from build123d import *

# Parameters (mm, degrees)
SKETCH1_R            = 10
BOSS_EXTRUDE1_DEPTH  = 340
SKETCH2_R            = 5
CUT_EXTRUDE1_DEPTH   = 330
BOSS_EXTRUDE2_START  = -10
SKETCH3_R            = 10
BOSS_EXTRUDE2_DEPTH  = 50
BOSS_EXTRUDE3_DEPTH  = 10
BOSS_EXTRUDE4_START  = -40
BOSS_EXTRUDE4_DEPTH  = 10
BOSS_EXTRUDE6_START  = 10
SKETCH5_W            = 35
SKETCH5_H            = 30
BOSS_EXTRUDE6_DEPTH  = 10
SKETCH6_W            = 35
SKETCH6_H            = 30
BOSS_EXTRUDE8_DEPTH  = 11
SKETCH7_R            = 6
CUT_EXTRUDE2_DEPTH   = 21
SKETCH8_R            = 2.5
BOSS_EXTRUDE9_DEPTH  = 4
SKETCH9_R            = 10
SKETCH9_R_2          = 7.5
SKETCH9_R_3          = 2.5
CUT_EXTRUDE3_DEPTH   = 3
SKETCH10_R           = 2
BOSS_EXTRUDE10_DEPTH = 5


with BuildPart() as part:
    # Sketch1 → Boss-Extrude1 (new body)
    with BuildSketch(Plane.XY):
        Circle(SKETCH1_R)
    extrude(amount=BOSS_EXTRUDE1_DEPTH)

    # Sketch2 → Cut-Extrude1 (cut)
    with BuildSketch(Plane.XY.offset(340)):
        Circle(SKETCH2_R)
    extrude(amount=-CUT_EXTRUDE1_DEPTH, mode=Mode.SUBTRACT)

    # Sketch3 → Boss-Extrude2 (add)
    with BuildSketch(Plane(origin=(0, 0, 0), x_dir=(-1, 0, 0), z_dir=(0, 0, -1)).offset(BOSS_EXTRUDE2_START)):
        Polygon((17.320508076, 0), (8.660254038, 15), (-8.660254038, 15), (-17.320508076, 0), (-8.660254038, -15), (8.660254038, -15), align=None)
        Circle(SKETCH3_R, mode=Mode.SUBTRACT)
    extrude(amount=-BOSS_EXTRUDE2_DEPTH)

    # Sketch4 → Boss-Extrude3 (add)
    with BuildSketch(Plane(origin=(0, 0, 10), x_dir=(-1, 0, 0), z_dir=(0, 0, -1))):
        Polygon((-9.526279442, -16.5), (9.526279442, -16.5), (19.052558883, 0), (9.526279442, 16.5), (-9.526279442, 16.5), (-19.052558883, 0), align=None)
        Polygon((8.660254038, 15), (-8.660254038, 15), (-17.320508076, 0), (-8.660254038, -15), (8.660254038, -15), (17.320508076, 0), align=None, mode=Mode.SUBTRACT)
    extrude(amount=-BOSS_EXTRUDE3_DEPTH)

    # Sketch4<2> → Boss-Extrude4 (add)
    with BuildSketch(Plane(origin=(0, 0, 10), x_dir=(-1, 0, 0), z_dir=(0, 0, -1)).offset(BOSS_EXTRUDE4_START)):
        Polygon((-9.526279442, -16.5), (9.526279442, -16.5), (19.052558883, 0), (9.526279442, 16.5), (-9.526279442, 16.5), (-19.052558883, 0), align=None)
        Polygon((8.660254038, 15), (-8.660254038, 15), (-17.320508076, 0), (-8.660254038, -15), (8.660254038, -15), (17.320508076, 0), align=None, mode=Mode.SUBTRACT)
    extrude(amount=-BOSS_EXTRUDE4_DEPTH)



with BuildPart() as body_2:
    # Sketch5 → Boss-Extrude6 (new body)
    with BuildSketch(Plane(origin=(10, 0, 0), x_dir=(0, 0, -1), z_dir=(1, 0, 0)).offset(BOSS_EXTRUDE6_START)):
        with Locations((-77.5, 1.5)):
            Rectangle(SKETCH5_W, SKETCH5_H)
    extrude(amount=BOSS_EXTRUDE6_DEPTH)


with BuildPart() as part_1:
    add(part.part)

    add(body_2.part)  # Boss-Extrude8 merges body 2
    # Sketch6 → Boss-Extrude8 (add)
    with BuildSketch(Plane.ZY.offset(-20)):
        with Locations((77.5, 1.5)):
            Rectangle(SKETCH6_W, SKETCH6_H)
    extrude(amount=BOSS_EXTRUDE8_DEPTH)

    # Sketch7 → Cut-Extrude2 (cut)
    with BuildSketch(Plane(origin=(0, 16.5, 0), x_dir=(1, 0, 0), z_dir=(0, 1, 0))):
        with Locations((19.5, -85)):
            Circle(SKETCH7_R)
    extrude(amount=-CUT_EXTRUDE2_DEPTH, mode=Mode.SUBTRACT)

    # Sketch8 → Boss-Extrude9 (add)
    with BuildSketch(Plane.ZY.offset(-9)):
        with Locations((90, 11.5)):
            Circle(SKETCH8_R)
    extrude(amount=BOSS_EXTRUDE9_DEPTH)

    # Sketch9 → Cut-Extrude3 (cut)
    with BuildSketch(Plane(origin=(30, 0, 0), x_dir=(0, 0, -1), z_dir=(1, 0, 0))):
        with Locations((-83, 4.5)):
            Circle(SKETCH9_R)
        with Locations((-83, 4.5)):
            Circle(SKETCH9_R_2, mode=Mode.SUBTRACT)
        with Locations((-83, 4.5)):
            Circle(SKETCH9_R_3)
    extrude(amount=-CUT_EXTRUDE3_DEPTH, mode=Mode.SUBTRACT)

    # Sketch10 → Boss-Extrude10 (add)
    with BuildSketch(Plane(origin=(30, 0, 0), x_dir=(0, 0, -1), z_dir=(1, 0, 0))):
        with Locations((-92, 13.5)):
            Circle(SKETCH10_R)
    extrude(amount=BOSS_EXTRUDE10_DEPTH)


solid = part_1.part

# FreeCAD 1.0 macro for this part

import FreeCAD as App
import Part
import Sketcher

V = App.Vector
Q = App.Units.Quantity

doc = App.newDocument("Part")
params = doc.addObject("Spreadsheet::Sheet", "Params")
for row, (alias, value) in enumerate([
    ("sketch1_diameter", "20 mm"),
    ("pad1_length", "340 mm"),
    ("sketch2_diameter", "10 mm"),
    ("pocket1_length", "330 mm"),
    ("sketch3_diameter", "20 mm"),
    ("pad2_length", "50 mm"),
    ("pad3_length", "10 mm"),
    ("pad4_length", "10 mm"),
    ("sketch6_width", "30 mm"),
    ("sketch6_height", "35 mm"),
    ("pad5_length", "10 mm"),
    ("sketch7_width", "30 mm"),
    ("sketch7_height", "35 mm"),
    ("pad6_length", "11 mm"),
    ("sketch8_diameter", "12 mm"),
    ("pocket2_length", "21 mm"),
    ("sketch9_diameter", "5 mm"),
    ("pad7_length", "4 mm"),
    ("sketch10_diameter", "20 mm"),
    ("sketch10_diameter2", "15 mm"),
    ("sketch10_diameter3", "5 mm"),
    ("pocket3_length", "3 mm"),
    ("sketch11_diameter", "4 mm"),
    ("pad8_length", "5 mm"),
], start=1):
    params.set(f"A{row}", alias)
    params.set(f"B{row}", "=" + value)
    params.setAlias(f"B{row}", alias)

body = doc.addObject("PartDesign::Body", "Body")

# Sketch on XY plane
sketch1 = body.newObject("Sketcher::SketchObject", "Sketch")
sketch1.AttachmentSupport = (doc.getObject("XY_Plane"), [""])
sketch1.MapMode = "FlatFace"
sketch1.addGeometry(Part.Circle(V(0, 0, 0), V(0, 0, 1), 10), False)
sketch1.addConstraint(Sketcher.Constraint("Coincident", 0, 3, -1, 1))
sketch1.addConstraint(Sketcher.Constraint("Diameter", 0, Q("20 mm")))
sketch1.setExpression("Constraints[1]", "Params.sketch1_diameter")
pad1 = body.newObject("PartDesign::Pad", "Pad")
pad1.Profile = sketch1
pad1.setExpression("Length", "Params.pad1_length")

# Sketch on XY plane
sketch2 = body.newObject("Sketcher::SketchObject", "Sketch001")
sketch2.AttachmentSupport = (doc.getObject("XY_Plane"), [""])
sketch2.MapMode = "FlatFace"
sketch2.AttachmentOffset = App.Placement(V(0, 0, 340), App.Rotation())
sketch2.addGeometry(Part.Circle(V(0, 0, 0), V(0, 0, 1), 5), False)
sketch2.addConstraint(Sketcher.Constraint("Coincident", 0, 3, -1, 1))
sketch2.addConstraint(Sketcher.Constraint("Diameter", 0, Q("10 mm")))
sketch2.setExpression("Constraints[1]", "Params.sketch2_diameter")
pocket1 = body.newObject("PartDesign::Pocket", "Pocket")
pocket1.Profile = sketch2
pocket1.setExpression("Length", "Params.pocket1_length")

# Sketch on XY plane
sketch3 = body.newObject("Sketcher::SketchObject", "Sketch002")
sketch3.AttachmentSupport = (doc.getObject("XY_Plane"), [""])
sketch3.MapMode = "FlatFace"
sketch3.AttachmentOffset = App.Placement(V(0, 0, 10), App.Rotation())
sketch3.addGeometry(Part.LineSegment(V(-17, 0, 0), V(-9, 15, 0)), False)
sketch3.addGeometry(Part.LineSegment(V(-9, 15, 0), V(9, 15, 0)), False)
sketch3.addGeometry(Part.LineSegment(V(9, 15, 0), V(17, 0, 0)), False)
sketch3.addGeometry(Part.LineSegment(V(17, 0, 0), V(9, -15, 0)), False)
sketch3.addGeometry(Part.LineSegment(V(9, -15, 0), V(-9, -15, 0)), False)
sketch3.addGeometry(Part.LineSegment(V(-9, -15, 0), V(-17, 0, 0)), False)
sketch3.addGeometry(Part.Circle(V(0, 0, 0), V(0, 0, 1), 10), False)
sketch3.addConstraint(Sketcher.Constraint("Coincident", 0, 2, 1, 1))
sketch3.addConstraint(Sketcher.Constraint("Coincident", 1, 2, 2, 1))
sketch3.addConstraint(Sketcher.Constraint("Coincident", 2, 2, 3, 1))
sketch3.addConstraint(Sketcher.Constraint("Coincident", 3, 2, 4, 1))
sketch3.addConstraint(Sketcher.Constraint("Coincident", 4, 2, 5, 1))
sketch3.addConstraint(Sketcher.Constraint("Coincident", 5, 2, 0, 1))
sketch3.addConstraint(Sketcher.Constraint("Horizontal", 1))
sketch3.addConstraint(Sketcher.Constraint("Horizontal", 4))
sketch3.addConstraint(Sketcher.Constraint("Coincident", 6, 3, -1, 1))
sketch3.addConstraint(Sketcher.Constraint("Symmetric", 0, 2, 3, 2, -1, 1))
sketch3.addConstraint(Sketcher.Constraint("Symmetric", 2, 2, 5, 2, -1, 1))
sketch3.addConstraint(Sketcher.Constraint("PointOnObject", 2, 2, -1))
sketch3.addConstraint(Sketcher.Constraint("Parallel", 2, 5))
sketch3.addConstraint(Sketcher.Constraint("Vertical", 1, 2, 3, 2))
sketch3.addConstraint(Sketcher.Constraint("Diameter", 6, Q("20 mm")))
sketch3.addConstraint(Sketcher.Constraint("Angle", 0, Q("60 deg")))
sketch3.addConstraint(Sketcher.Constraint("DistanceY", -1, 1, 0, 2, Q("15 mm")))
sketch3.addConstraint(Sketcher.Constraint("DistanceX", 1, 1, 1, 2, Q("17.320508 mm")))
sketch3.setExpression("Constraints[14]", "Params.sketch3_diameter")
pad2 = body.newObject("PartDesign::Pad", "Pad001")
pad2.Profile = sketch3
pad2.setExpression("Length", "Params.pad2_length")

# Sketch on XY plane
sketch4 = body.newObject("Sketcher::SketchObject", "Sketch003")
sketch4.AttachmentSupport = (doc.getObject("XY_Plane"), [""])
sketch4.MapMode = "FlatFace"
sketch4.AttachmentOffset = App.Placement(V(0, 0, 10), App.Rotation())
sketch4.addGeometry(Part.LineSegment(V(10, -16, 0), V(-10, -16, 0)), False)
sketch4.addGeometry(Part.LineSegment(V(-10, -16, 0), V(-19, 0, 0)), False)
sketch4.addGeometry(Part.LineSegment(V(-19, 0, 0), V(-10, 16, 0)), False)
sketch4.addGeometry(Part.LineSegment(V(-10, 16, 0), V(10, 16, 0)), False)
sketch4.addGeometry(Part.LineSegment(V(10, 16, 0), V(19, 0, 0)), False)
sketch4.addGeometry(Part.LineSegment(V(19, 0, 0), V(10, -16, 0)), False)
sketch4.addGeometry(Part.LineSegment(V(9, 15, 0), V(-9, 15, 0)), False)
sketch4.addGeometry(Part.LineSegment(V(-9, 15, 0), V(-17, 0, 0)), False)
sketch4.addGeometry(Part.LineSegment(V(-17, 0, 0), V(-9, -15, 0)), False)
sketch4.addGeometry(Part.LineSegment(V(-9, -15, 0), V(9, -15, 0)), False)
sketch4.addGeometry(Part.LineSegment(V(9, -15, 0), V(17, 0, 0)), False)
sketch4.addGeometry(Part.LineSegment(V(17, 0, 0), V(9, 15, 0)), False)
sketch4.addConstraint(Sketcher.Constraint("Coincident", 0, 2, 1, 1))
sketch4.addConstraint(Sketcher.Constraint("Coincident", 1, 2, 2, 1))
sketch4.addConstraint(Sketcher.Constraint("Coincident", 2, 2, 3, 1))
sketch4.addConstraint(Sketcher.Constraint("Coincident", 3, 2, 4, 1))
sketch4.addConstraint(Sketcher.Constraint("Coincident", 4, 2, 5, 1))
sketch4.addConstraint(Sketcher.Constraint("Coincident", 5, 2, 0, 1))
sketch4.addConstraint(Sketcher.Constraint("Coincident", 6, 2, 7, 1))
sketch4.addConstraint(Sketcher.Constraint("Coincident", 7, 2, 8, 1))
sketch4.addConstraint(Sketcher.Constraint("Coincident", 8, 2, 9, 1))
sketch4.addConstraint(Sketcher.Constraint("Coincident", 9, 2, 10, 1))
sketch4.addConstraint(Sketcher.Constraint("Coincident", 10, 2, 11, 1))
sketch4.addConstraint(Sketcher.Constraint("Coincident", 11, 2, 6, 1))
sketch4.addConstraint(Sketcher.Constraint("Horizontal", 0))
sketch4.addConstraint(Sketcher.Constraint("Horizontal", 3))
sketch4.addConstraint(Sketcher.Constraint("Horizontal", 6))
sketch4.addConstraint(Sketcher.Constraint("Horizontal", 9))
sketch4.addConstraint(Sketcher.Constraint("Symmetric", 0, 2, 3, 2, -1, 1))
sketch4.addConstraint(Sketcher.Constraint("Symmetric", 1, 2, 4, 2, -1, 1))
sketch4.addConstraint(Sketcher.Constraint("Symmetric", 6, 2, 9, 2, -1, 1))
sketch4.addConstraint(Sketcher.Constraint("Symmetric", 7, 2, 10, 2, -1, 1))
sketch4.addConstraint(Sketcher.Constraint("PointOnObject", 1, 2, -1))
sketch4.addConstraint(Sketcher.Constraint("PointOnObject", 7, 2, -1))
sketch4.addConstraint(Sketcher.Constraint("Parallel", 2, 5))
sketch4.addConstraint(Sketcher.Constraint("Parallel", 5, 7))
sketch4.addConstraint(Sketcher.Constraint("Parallel", 4, 8))
sketch4.addConstraint(Sketcher.Constraint("Parallel", 8, 11))
sketch4.addConstraint(Sketcher.Constraint("Vertical", 0, 2, 2, 2))
sketch4.addConstraint(Sketcher.Constraint("Angle", 1, Q("120 deg")))
sketch4.addConstraint(Sketcher.Constraint("DistanceY", -1, 1, 6, 2, Q("15 mm")))
sketch4.addConstraint(Sketcher.Constraint("DistanceY", 0, 2, 2, 2, Q("33 mm")))
sketch4.addConstraint(Sketcher.Constraint("DistanceX", 0, 2, 0, 1, Q("19.052559 mm")))
sketch4.addConstraint(Sketcher.Constraint("DistanceX", 6, 2, 6, 1, Q("17.320508 mm")))
pad3 = body.newObject("PartDesign::Pad", "Pad002")
pad3.Profile = sketch4
pad3.setExpression("Length", "Params.pad3_length")

# Sketch on XY plane
sketch5 = body.newObject("Sketcher::SketchObject", "Sketch004")
sketch5.AttachmentSupport = (doc.getObject("XY_Plane"), [""])
sketch5.MapMode = "FlatFace"
sketch5.AttachmentOffset = App.Placement(V(0, 0, 50), App.Rotation())
sketch5.addGeometry(Part.LineSegment(V(10, -16, 0), V(-10, -16, 0)), False)
sketch5.addGeometry(Part.LineSegment(V(-10, -16, 0), V(-19, 0, 0)), False)
sketch5.addGeometry(Part.LineSegment(V(-19, 0, 0), V(-10, 16, 0)), False)
sketch5.addGeometry(Part.LineSegment(V(-10, 16, 0), V(10, 16, 0)), False)
sketch5.addGeometry(Part.LineSegment(V(10, 16, 0), V(19, 0, 0)), False)
sketch5.addGeometry(Part.LineSegment(V(19, 0, 0), V(10, -16, 0)), False)
sketch5.addGeometry(Part.LineSegment(V(9, 15, 0), V(-9, 15, 0)), False)
sketch5.addGeometry(Part.LineSegment(V(-9, 15, 0), V(-17, 0, 0)), False)
sketch5.addGeometry(Part.LineSegment(V(-17, 0, 0), V(-9, -15, 0)), False)
sketch5.addGeometry(Part.LineSegment(V(-9, -15, 0), V(9, -15, 0)), False)
sketch5.addGeometry(Part.LineSegment(V(9, -15, 0), V(17, 0, 0)), False)
sketch5.addGeometry(Part.LineSegment(V(17, 0, 0), V(9, 15, 0)), False)
sketch5.addConstraint(Sketcher.Constraint("Coincident", 0, 2, 1, 1))
sketch5.addConstraint(Sketcher.Constraint("Coincident", 1, 2, 2, 1))
sketch5.addConstraint(Sketcher.Constraint("Coincident", 2, 2, 3, 1))
sketch5.addConstraint(Sketcher.Constraint("Coincident", 3, 2, 4, 1))
sketch5.addConstraint(Sketcher.Constraint("Coincident", 4, 2, 5, 1))
sketch5.addConstraint(Sketcher.Constraint("Coincident", 5, 2, 0, 1))
sketch5.addConstraint(Sketcher.Constraint("Coincident", 6, 2, 7, 1))
sketch5.addConstraint(Sketcher.Constraint("Coincident", 7, 2, 8, 1))
sketch5.addConstraint(Sketcher.Constraint("Coincident", 8, 2, 9, 1))
sketch5.addConstraint(Sketcher.Constraint("Coincident", 9, 2, 10, 1))
sketch5.addConstraint(Sketcher.Constraint("Coincident", 10, 2, 11, 1))
sketch5.addConstraint(Sketcher.Constraint("Coincident", 11, 2, 6, 1))
sketch5.addConstraint(Sketcher.Constraint("Horizontal", 0))
sketch5.addConstraint(Sketcher.Constraint("Horizontal", 3))
sketch5.addConstraint(Sketcher.Constraint("Horizontal", 6))
sketch5.addConstraint(Sketcher.Constraint("Horizontal", 9))
sketch5.addConstraint(Sketcher.Constraint("Symmetric", 0, 2, 3, 2, -1, 1))
sketch5.addConstraint(Sketcher.Constraint("Symmetric", 1, 2, 4, 2, -1, 1))
sketch5.addConstraint(Sketcher.Constraint("Symmetric", 6, 2, 9, 2, -1, 1))
sketch5.addConstraint(Sketcher.Constraint("Symmetric", 7, 2, 10, 2, -1, 1))
sketch5.addConstraint(Sketcher.Constraint("PointOnObject", 1, 2, -1))
sketch5.addConstraint(Sketcher.Constraint("PointOnObject", 7, 2, -1))
sketch5.addConstraint(Sketcher.Constraint("Parallel", 2, 5))
sketch5.addConstraint(Sketcher.Constraint("Parallel", 5, 7))
sketch5.addConstraint(Sketcher.Constraint("Parallel", 4, 8))
sketch5.addConstraint(Sketcher.Constraint("Parallel", 8, 11))
sketch5.addConstraint(Sketcher.Constraint("Vertical", 0, 2, 2, 2))
sketch5.addConstraint(Sketcher.Constraint("Angle", 1, Q("120 deg")))
sketch5.addConstraint(Sketcher.Constraint("DistanceY", -1, 1, 6, 2, Q("15 mm")))
sketch5.addConstraint(Sketcher.Constraint("DistanceY", 0, 2, 2, 2, Q("33 mm")))
sketch5.addConstraint(Sketcher.Constraint("DistanceX", 0, 2, 0, 1, Q("19.052559 mm")))
sketch5.addConstraint(Sketcher.Constraint("DistanceX", 6, 2, 6, 1, Q("17.320508 mm")))
pad4 = body.newObject("PartDesign::Pad", "Pad003")
pad4.Profile = sketch5
pad4.setExpression("Length", "Params.pad4_length")
body2 = doc.addObject("PartDesign::Body", "Body001")

# Sketch on YZ plane
sketch6 = body2.newObject("Sketcher::SketchObject", "Sketch005")
sketch6.AttachmentSupport = (doc.getObject("YZ_Plane001"), [""])
sketch6.MapMode = "FlatFace"
sketch6.AttachmentOffset = App.Placement(V(0, 0, 20), App.Rotation())
sketch6.addGeometry(Part.LineSegment(V(16, 95, 0), V(-14, 95, 0)), False)
sketch6.addGeometry(Part.LineSegment(V(-14, 95, 0), V(-14, 60, 0)), False)
sketch6.addGeometry(Part.LineSegment(V(-14, 60, 0), V(16, 60, 0)), False)
sketch6.addGeometry(Part.LineSegment(V(16, 60, 0), V(16, 95, 0)), False)
sketch6.addConstraint(Sketcher.Constraint("Coincident", 0, 2, 1, 1))
sketch6.addConstraint(Sketcher.Constraint("Coincident", 1, 2, 2, 1))
sketch6.addConstraint(Sketcher.Constraint("Coincident", 2, 2, 3, 1))
sketch6.addConstraint(Sketcher.Constraint("Coincident", 3, 2, 0, 1))
sketch6.addConstraint(Sketcher.Constraint("Horizontal", 0))
sketch6.addConstraint(Sketcher.Constraint("Vertical", 1))
sketch6.addConstraint(Sketcher.Constraint("Horizontal", 2))
sketch6.addConstraint(Sketcher.Constraint("Vertical", 3))
sketch6.addConstraint(Sketcher.Constraint("DistanceX", 0, 2, 0, 1, Q("30 mm")))
sketch6.addConstraint(Sketcher.Constraint("DistanceY", 1, 2, 1, 1, Q("35 mm")))
sketch6.addConstraint(Sketcher.Constraint("DistanceY", -1, 1, 0, 2, Q("95 mm")))
sketch6.addConstraint(Sketcher.Constraint("DistanceX", 0, 2, -1, 1, Q("13.5 mm")))
sketch6.setExpression("Constraints[8]", "Params.sketch6_width")
sketch6.setExpression("Constraints[9]", "Params.sketch6_height")
pad5 = body2.newObject("PartDesign::Pad", "Pad004")
pad5.Profile = sketch6
pad5.setExpression("Length", "Params.pad5_length")
body.AllowCompound = True
doc.recompute()

boolean = body.newObject("PartDesign::Boolean", "Boolean")
boolean.Type = "Fuse"
boolean.addObjects([body2])

# Sketch on YZ plane
sketch7 = body.newObject("Sketcher::SketchObject", "Sketch006")
sketch7.AttachmentSupport = (doc.getObject("YZ_Plane"), [""])
sketch7.MapMode = "FlatFace"
sketch7.AttachmentOffset = App.Placement(V(0, 0, 20), App.Rotation())
sketch7.addGeometry(Part.LineSegment(V(16, 60, 0), V(-14, 60, 0)), False)
sketch7.addGeometry(Part.LineSegment(V(-14, 60, 0), V(-14, 95, 0)), False)
sketch7.addGeometry(Part.LineSegment(V(-14, 95, 0), V(16, 95, 0)), False)
sketch7.addGeometry(Part.LineSegment(V(16, 95, 0), V(16, 60, 0)), False)
sketch7.addConstraint(Sketcher.Constraint("Coincident", 0, 2, 1, 1))
sketch7.addConstraint(Sketcher.Constraint("Coincident", 1, 2, 2, 1))
sketch7.addConstraint(Sketcher.Constraint("Coincident", 2, 2, 3, 1))
sketch7.addConstraint(Sketcher.Constraint("Coincident", 3, 2, 0, 1))
sketch7.addConstraint(Sketcher.Constraint("Horizontal", 0))
sketch7.addConstraint(Sketcher.Constraint("Vertical", 1))
sketch7.addConstraint(Sketcher.Constraint("Horizontal", 2))
sketch7.addConstraint(Sketcher.Constraint("Vertical", 3))
sketch7.addConstraint(Sketcher.Constraint("DistanceX", 0, 2, 0, 1, Q("30 mm")))
sketch7.addConstraint(Sketcher.Constraint("DistanceY", 1, 1, 1, 2, Q("35 mm")))
sketch7.addConstraint(Sketcher.Constraint("DistanceY", -1, 1, 0, 2, Q("60 mm")))
sketch7.addConstraint(Sketcher.Constraint("DistanceX", 0, 2, -1, 1, Q("13.5 mm")))
sketch7.setExpression("Constraints[8]", "Params.sketch7_width")
sketch7.setExpression("Constraints[9]", "Params.sketch7_height")
pad6 = body.newObject("PartDesign::Pad", "Pad005")
pad6.Profile = sketch7
pad6.setExpression("Length", "Params.pad6_length")
pad6.Reversed = True

# Sketch on XZ plane
sketch8 = body.newObject("Sketcher::SketchObject", "Sketch007")
sketch8.AttachmentSupport = (doc.getObject("XZ_Plane"), [""])
sketch8.MapMode = "FlatFace"
sketch8.AttachmentOffset = App.Placement(V(0, 0, -16.5), App.Rotation())
sketch8.addGeometry(Part.Circle(V(20, 85, 0), V(0, 0, 1), 6), False)
sketch8.addConstraint(Sketcher.Constraint("Diameter", 0, Q("12 mm")))
sketch8.addConstraint(Sketcher.Constraint("DistanceY", -1, 1, 0, 3, Q("85 mm")))
sketch8.addConstraint(Sketcher.Constraint("DistanceX", -1, 1, 0, 3, Q("19.5 mm")))
sketch8.setExpression("Constraints[0]", "Params.sketch8_diameter")
pocket2 = body.newObject("PartDesign::Pocket", "Pocket001")
pocket2.Profile = sketch8
pocket2.setExpression("Length", "Params.pocket2_length")
pocket2.Reversed = True

# Sketch on YZ plane
sketch9 = body.newObject("Sketcher::SketchObject", "Sketch008")
sketch9.AttachmentSupport = (doc.getObject("YZ_Plane"), [""])
sketch9.MapMode = "FlatFace"
sketch9.AttachmentOffset = App.Placement(V(0, 0, 9), App.Rotation())
sketch9.addGeometry(Part.Circle(V(11.5, 90, 0), V(0, 0, 1), 2.5), False)
sketch9.addConstraint(Sketcher.Constraint("Diameter", 0, Q("5 mm")))
sketch9.addConstraint(Sketcher.Constraint("DistanceY", -1, 1, 0, 3, Q("90 mm")))
sketch9.addConstraint(Sketcher.Constraint("DistanceX", -1, 1, 0, 3, Q("11.5 mm")))
sketch9.setExpression("Constraints[0]", "Params.sketch9_diameter")
pad7 = body.newObject("PartDesign::Pad", "Pad006")
pad7.Profile = sketch9
pad7.setExpression("Length", "Params.pad7_length")
pad7.Reversed = True

# Sketch on YZ plane
sketch10 = body.newObject("Sketcher::SketchObject", "Sketch009")
sketch10.AttachmentSupport = (doc.getObject("YZ_Plane"), [""])
sketch10.MapMode = "FlatFace"
sketch10.AttachmentOffset = App.Placement(V(0, 0, 30), App.Rotation())
sketch10.addGeometry(Part.Circle(V(4.5, 83, 0), V(0, 0, 1), 10), False)
sketch10.addGeometry(Part.Circle(V(4.5, 83, 0), V(0, 0, 1), 7.5), False)
sketch10.addGeometry(Part.Circle(V(4.5, 83, 0), V(0, 0, 1), 2.5), False)
sketch10.addConstraint(Sketcher.Constraint("Coincident", 1, 3, 0, 3))
sketch10.addConstraint(Sketcher.Constraint("Coincident", 2, 3, 0, 3))
sketch10.addConstraint(Sketcher.Constraint("Diameter", 0, Q("20 mm")))
sketch10.addConstraint(Sketcher.Constraint("Diameter", 1, Q("15 mm")))
sketch10.addConstraint(Sketcher.Constraint("Diameter", 2, Q("5 mm")))
sketch10.addConstraint(Sketcher.Constraint("DistanceY", -1, 1, 0, 3, Q("83 mm")))
sketch10.addConstraint(Sketcher.Constraint("DistanceX", -1, 1, 0, 3, Q("4.5 mm")))
sketch10.setExpression("Constraints[2]", "Params.sketch10_diameter")
sketch10.setExpression("Constraints[3]", "Params.sketch10_diameter2")
sketch10.setExpression("Constraints[4]", "Params.sketch10_diameter3")
pocket3 = body.newObject("PartDesign::Pocket", "Pocket002")
pocket3.Profile = sketch10
pocket3.setExpression("Length", "Params.pocket3_length")

# Sketch on YZ plane
sketch11 = body.newObject("Sketcher::SketchObject", "Sketch010")
sketch11.AttachmentSupport = (doc.getObject("YZ_Plane"), [""])
sketch11.MapMode = "FlatFace"
sketch11.AttachmentOffset = App.Placement(V(0, 0, 30), App.Rotation())
sketch11.addGeometry(Part.Circle(V(13.5, 92, 0), V(0, 0, 1), 2), False)
sketch11.addConstraint(Sketcher.Constraint("Diameter", 0, Q("4 mm")))
sketch11.addConstraint(Sketcher.Constraint("DistanceY", -1, 1, 0, 3, Q("92 mm")))
sketch11.addConstraint(Sketcher.Constraint("DistanceX", -1, 1, 0, 3, Q("13.5 mm")))
sketch11.setExpression("Constraints[0]", "Params.sketch11_diameter")
pad8 = body.newObject("PartDesign::Pad", "Pad007")
pad8.Profile = sketch11
pad8.setExpression("Length", "Params.pad8_length")

doc.recompute()
